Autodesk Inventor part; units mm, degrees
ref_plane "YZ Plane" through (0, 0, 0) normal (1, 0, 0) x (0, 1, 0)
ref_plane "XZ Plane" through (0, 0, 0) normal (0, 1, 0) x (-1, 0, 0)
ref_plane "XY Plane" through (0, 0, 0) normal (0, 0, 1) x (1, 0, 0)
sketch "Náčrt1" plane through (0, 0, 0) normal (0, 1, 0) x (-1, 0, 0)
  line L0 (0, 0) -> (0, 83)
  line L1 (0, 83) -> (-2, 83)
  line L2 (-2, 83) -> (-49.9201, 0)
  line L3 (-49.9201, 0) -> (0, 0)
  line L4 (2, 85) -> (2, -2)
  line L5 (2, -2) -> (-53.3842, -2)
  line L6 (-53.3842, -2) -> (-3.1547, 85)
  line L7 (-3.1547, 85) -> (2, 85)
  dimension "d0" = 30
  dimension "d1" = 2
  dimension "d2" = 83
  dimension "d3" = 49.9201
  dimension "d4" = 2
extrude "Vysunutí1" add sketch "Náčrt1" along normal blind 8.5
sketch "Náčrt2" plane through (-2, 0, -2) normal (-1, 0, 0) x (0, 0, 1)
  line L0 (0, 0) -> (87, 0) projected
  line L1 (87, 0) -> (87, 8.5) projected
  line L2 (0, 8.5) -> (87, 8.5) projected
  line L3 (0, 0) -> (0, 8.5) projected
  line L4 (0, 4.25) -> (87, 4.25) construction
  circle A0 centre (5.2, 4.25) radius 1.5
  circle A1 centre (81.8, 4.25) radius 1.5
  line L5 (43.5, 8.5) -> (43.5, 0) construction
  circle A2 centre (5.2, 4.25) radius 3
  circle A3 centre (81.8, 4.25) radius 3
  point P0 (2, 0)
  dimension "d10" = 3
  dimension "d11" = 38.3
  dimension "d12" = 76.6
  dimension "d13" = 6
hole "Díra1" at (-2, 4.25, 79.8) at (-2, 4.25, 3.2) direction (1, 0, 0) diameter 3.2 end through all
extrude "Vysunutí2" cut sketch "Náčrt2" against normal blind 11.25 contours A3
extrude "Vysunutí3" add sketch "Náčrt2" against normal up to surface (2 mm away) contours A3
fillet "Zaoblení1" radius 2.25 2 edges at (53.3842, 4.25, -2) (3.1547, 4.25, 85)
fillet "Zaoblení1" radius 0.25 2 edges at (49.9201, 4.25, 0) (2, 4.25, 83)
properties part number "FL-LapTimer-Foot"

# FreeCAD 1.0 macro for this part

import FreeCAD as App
import Part
import Sketcher
from FreeCAD import Vector
Q = App.Units.Quantity


def edges_at(feature, points):
    """Names of the edges that pass closest to the given points."""
    edges = feature.Shape.Edges
    near = lambda p: min(range(len(edges)), key=lambda i: edges[i].distToShape(Part.Vertex(*p))[0])
    return sorted({f"Edge{near(p) + 1}" for p in points})

doc = App.newDocument("Part")
body = doc.addObject("PartDesign::Body", "Body")

# Sketch on XZ plane
sketch1 = body.newObject("Sketcher::SketchObject", "Sketch")
sketch1.AttachmentSupport = (doc.getObject("XZ_Plane"), [""])
sketch1.MapMode = "FlatFace"
sketch1.addGeometry(Part.LineSegment(Vector(-2, -2, 0), Vector(-2, 85, 0)), False)
sketch1.addGeometry(Part.LineSegment(Vector(-2, 85, 0), Vector(3.1547, 85, 0)), False)
sketch1.addGeometry(Part.LineSegment(Vector(3.1547, 85, 0), Vector(53.3842, -2, 0)), False)
sketch1.addGeometry(Part.LineSegment(Vector(53.3842, -2, 0), Vector(-2, -2, 0)), False)
sketch1.addGeometry(Part.LineSegment(Vector(0, 83, 0), Vector(0, 0, 0)), False)
sketch1.addGeometry(Part.LineSegment(Vector(0, 0, 0), Vector(49.9201, 0, 0)), False)
sketch1.addGeometry(Part.LineSegment(Vector(49.9201, 0, 0), Vector(2, 83, 0)), False)
sketch1.addGeometry(Part.LineSegment(Vector(2, 83, 0), Vector(0, 83, 0)), False)
sketch1.addConstraint(Sketcher.Constraint("Coincident", 0, 2, 1, 1))
sketch1.addConstraint(Sketcher.Constraint("Coincident", 1, 2, 2, 1))
sketch1.addConstraint(Sketcher.Constraint("Coincident", 2, 2, 3, 1))
sketch1.addConstraint(Sketcher.Constraint("Coincident", 3, 2, 0, 1))
sketch1.addConstraint(Sketcher.Constraint("Coincident", 4, 2, 5, 1))
sketch1.addConstraint(Sketcher.Constraint("Coincident", 5, 2, 6, 1))
sketch1.addConstraint(Sketcher.Constraint("Coincident", 6, 2, 7, 1))
sketch1.addConstraint(Sketcher.Constraint("Coincident", 7, 2, 4, 1))
sketch1.addConstraint(Sketcher.Constraint("Vertical", 0))
sketch1.addConstraint(Sketcher.Constraint("Horizontal", 1))
sketch1.addConstraint(Sketcher.Constraint("Horizontal", 3))
sketch1.addConstraint(Sketcher.Constraint("Vertical", 4))
sketch1.addConstraint(Sketcher.Constraint("Horizontal", 5))
sketch1.addConstraint(Sketcher.Constraint("Horizontal", 7))
sketch1.addConstraint(Sketcher.Constraint("Coincident", 4, 2, -1, 1))
sketch1.addConstraint(Sketcher.Constraint("Parallel", 2, 6))
sketch1.addConstraint(Sketcher.Constraint("DistanceX", 7, 2, 7, 1, Q("2 mm")))
sketch1.addConstraint(Sketcher.Constraint("DistanceY", 4, 2, 4, 1, Q("83 mm")))
sketch1.addConstraint(Sketcher.Constraint("DistanceX", 0, 2, -1, 1, Q("2 mm")))
sketch1.addConstraint(Sketcher.Constraint("DistanceY", 2, 2, -1, 1, Q("2 mm")))
sketch1.addConstraint(Sketcher.Constraint("DistanceY", 6, 2, 1, 2, Q("2 mm")))
sketch1.addConstraint(Sketcher.Constraint("DistanceX", 5, 1, 5, 2, Q("49.92 mm")))
sketch1.addConstraint(Sketcher.Constraint("DistanceX", 1, 1, 1, 2, Q("5.1547 mm")))
pad1 = body.newObject("PartDesign::Pad", "Pad")
pad1.Profile = sketch1
pad1.Length = 8.5
pad1.Reversed = True

# Sketch on YZ plane
sketch2 = body.newObject("Sketcher::SketchObject", "Sketch001")
sketch2.AttachmentSupport = (doc.getObject("YZ_Plane"), [""])
sketch2.MapMode = "FlatFace"
sketch2.AttachmentOffset = App.Placement(Vector(0, 0, -2), App.Rotation())
sketch2.addGeometry(Part.Circle(Vector(4.25, 79.8, 0), Vector(0, 0, 1), 1.6), False)
sketch2.addGeometry(Part.Circle(Vector(4.25, 3.2, 0), Vector(0, 0, 1), 1.6), False)
sketch2.addConstraint(Sketcher.Constraint("Equal", 0, 1))
sketch2.addConstraint(Sketcher.Constraint("Vertical", 0, 3, 1, 3))
sketch2.addConstraint(Sketcher.Constraint("Diameter", 0, Q("3.2 mm")))
sketch2.addConstraint(Sketcher.Constraint("DistanceY", -1, 1, 0, 3, Q("79.8 mm")))
sketch2.addConstraint(Sketcher.Constraint("DistanceY", -1, 1, 1, 3, Q("3.2 mm")))
sketch2.addConstraint(Sketcher.Constraint("DistanceX", -1, 1, 0, 3, Q("4.25 mm")))
doc.recompute()
hole = body.newObject("PartDesign::Hole", "Hole")
hole.Profile = sketch2
hole.ThreadType = "None"
hole.Diameter = 3.2
hole.DepthType = "ThroughAll"
hole.Reversed = True

# Sketch on YZ plane
sketch3 = body.newObject("Sketcher::SketchObject", "Sketch002")
sketch3.AttachmentSupport = (doc.getObject("YZ_Plane"), [""])
sketch3.MapMode = "FlatFace"
sketch3.AttachmentOffset = App.Placement(Vector(0, 0, -2), App.Rotation())
sketch3.addGeometry(Part.Circle(Vector(4.25, 79.8, 0), Vector(0, 0, 1), 3), False)
sketch3.addGeometry(Part.Circle(Vector(4.25, 79.8, 0), Vector(0, 0, 1), 1.5), False)
sketch3.addConstraint(Sketcher.Constraint("Coincident", 1, 3, 0, 3))
sketch3.addConstraint(Sketcher.Constraint("Diameter", 0, Q("6 mm")))
sketch3.addConstraint(Sketcher.Constraint("Diameter", 1, Q("3 mm")))
sketch3.addConstraint(Sketcher.Constraint("DistanceY", -1, 1, 0, 3, Q("79.8 mm")))
sketch3.addConstraint(Sketcher.Constraint("DistanceX", -1, 1, 0, 3, Q("4.25 mm")))
pocket1 = body.newObject("PartDesign::Pocket", "Pocket")
pocket1.Profile = sketch3
pocket1.Length = 11.25
pocket1.Reversed = True

# Sketch on YZ plane
sketch4 = body.newObject("Sketcher::SketchObject", "Sketch003")
sketch4.AttachmentSupport = (doc.getObject("YZ_Plane"), [""])
sketch4.MapMode = "FlatFace"
sketch4.AttachmentOffset = App.Placement(Vector(0, 0, -2), App.Rotation())
sketch4.addGeometry(Part.Circle(Vector(4.25, 79.8, 0), Vector(0, 0, 1), 3), False)
sketch4.addGeometry(Part.Circle(Vector(4.25, 79.8, 0), Vector(0, 0, 1), 1.5), False)
sketch4.addConstraint(Sketcher.Constraint("Coincident", 1, 3, 0, 3))
sketch4.addConstraint(Sketcher.Constraint("Diameter", 0, Q("6 mm")))
sketch4.addConstraint(Sketcher.Constraint("Diameter", 1, Q("3 mm")))
sketch4.addConstraint(Sketcher.Constraint("DistanceY", -1, 1, 0, 3, Q("79.8 mm")))
sketch4.addConstraint(Sketcher.Constraint("DistanceX", -1, 1, 0, 3, Q("4.25 mm")))
pad2 = body.newObject("PartDesign::Pad", "Pad001")
pad2.Profile = sketch4
pad2.Length = 2
doc.recompute()

fillet = body.newObject("PartDesign::Fillet", "Fillet")
fillet.Base = (pad2, edges_at(pad2, [(53.384, 4.25, -2), (3.155, 4.25, 85)]))
fillet.Radius = 2.25
doc.recompute()

fillet2 = body.newObject("PartDesign::Fillet", "Fillet001")
fillet2.Base = (fillet, edges_at(fillet, [(49.92, 4.25, 0), (2, 4.25, 83)]))
fillet2.Radius = 0.25

doc.recompute()
